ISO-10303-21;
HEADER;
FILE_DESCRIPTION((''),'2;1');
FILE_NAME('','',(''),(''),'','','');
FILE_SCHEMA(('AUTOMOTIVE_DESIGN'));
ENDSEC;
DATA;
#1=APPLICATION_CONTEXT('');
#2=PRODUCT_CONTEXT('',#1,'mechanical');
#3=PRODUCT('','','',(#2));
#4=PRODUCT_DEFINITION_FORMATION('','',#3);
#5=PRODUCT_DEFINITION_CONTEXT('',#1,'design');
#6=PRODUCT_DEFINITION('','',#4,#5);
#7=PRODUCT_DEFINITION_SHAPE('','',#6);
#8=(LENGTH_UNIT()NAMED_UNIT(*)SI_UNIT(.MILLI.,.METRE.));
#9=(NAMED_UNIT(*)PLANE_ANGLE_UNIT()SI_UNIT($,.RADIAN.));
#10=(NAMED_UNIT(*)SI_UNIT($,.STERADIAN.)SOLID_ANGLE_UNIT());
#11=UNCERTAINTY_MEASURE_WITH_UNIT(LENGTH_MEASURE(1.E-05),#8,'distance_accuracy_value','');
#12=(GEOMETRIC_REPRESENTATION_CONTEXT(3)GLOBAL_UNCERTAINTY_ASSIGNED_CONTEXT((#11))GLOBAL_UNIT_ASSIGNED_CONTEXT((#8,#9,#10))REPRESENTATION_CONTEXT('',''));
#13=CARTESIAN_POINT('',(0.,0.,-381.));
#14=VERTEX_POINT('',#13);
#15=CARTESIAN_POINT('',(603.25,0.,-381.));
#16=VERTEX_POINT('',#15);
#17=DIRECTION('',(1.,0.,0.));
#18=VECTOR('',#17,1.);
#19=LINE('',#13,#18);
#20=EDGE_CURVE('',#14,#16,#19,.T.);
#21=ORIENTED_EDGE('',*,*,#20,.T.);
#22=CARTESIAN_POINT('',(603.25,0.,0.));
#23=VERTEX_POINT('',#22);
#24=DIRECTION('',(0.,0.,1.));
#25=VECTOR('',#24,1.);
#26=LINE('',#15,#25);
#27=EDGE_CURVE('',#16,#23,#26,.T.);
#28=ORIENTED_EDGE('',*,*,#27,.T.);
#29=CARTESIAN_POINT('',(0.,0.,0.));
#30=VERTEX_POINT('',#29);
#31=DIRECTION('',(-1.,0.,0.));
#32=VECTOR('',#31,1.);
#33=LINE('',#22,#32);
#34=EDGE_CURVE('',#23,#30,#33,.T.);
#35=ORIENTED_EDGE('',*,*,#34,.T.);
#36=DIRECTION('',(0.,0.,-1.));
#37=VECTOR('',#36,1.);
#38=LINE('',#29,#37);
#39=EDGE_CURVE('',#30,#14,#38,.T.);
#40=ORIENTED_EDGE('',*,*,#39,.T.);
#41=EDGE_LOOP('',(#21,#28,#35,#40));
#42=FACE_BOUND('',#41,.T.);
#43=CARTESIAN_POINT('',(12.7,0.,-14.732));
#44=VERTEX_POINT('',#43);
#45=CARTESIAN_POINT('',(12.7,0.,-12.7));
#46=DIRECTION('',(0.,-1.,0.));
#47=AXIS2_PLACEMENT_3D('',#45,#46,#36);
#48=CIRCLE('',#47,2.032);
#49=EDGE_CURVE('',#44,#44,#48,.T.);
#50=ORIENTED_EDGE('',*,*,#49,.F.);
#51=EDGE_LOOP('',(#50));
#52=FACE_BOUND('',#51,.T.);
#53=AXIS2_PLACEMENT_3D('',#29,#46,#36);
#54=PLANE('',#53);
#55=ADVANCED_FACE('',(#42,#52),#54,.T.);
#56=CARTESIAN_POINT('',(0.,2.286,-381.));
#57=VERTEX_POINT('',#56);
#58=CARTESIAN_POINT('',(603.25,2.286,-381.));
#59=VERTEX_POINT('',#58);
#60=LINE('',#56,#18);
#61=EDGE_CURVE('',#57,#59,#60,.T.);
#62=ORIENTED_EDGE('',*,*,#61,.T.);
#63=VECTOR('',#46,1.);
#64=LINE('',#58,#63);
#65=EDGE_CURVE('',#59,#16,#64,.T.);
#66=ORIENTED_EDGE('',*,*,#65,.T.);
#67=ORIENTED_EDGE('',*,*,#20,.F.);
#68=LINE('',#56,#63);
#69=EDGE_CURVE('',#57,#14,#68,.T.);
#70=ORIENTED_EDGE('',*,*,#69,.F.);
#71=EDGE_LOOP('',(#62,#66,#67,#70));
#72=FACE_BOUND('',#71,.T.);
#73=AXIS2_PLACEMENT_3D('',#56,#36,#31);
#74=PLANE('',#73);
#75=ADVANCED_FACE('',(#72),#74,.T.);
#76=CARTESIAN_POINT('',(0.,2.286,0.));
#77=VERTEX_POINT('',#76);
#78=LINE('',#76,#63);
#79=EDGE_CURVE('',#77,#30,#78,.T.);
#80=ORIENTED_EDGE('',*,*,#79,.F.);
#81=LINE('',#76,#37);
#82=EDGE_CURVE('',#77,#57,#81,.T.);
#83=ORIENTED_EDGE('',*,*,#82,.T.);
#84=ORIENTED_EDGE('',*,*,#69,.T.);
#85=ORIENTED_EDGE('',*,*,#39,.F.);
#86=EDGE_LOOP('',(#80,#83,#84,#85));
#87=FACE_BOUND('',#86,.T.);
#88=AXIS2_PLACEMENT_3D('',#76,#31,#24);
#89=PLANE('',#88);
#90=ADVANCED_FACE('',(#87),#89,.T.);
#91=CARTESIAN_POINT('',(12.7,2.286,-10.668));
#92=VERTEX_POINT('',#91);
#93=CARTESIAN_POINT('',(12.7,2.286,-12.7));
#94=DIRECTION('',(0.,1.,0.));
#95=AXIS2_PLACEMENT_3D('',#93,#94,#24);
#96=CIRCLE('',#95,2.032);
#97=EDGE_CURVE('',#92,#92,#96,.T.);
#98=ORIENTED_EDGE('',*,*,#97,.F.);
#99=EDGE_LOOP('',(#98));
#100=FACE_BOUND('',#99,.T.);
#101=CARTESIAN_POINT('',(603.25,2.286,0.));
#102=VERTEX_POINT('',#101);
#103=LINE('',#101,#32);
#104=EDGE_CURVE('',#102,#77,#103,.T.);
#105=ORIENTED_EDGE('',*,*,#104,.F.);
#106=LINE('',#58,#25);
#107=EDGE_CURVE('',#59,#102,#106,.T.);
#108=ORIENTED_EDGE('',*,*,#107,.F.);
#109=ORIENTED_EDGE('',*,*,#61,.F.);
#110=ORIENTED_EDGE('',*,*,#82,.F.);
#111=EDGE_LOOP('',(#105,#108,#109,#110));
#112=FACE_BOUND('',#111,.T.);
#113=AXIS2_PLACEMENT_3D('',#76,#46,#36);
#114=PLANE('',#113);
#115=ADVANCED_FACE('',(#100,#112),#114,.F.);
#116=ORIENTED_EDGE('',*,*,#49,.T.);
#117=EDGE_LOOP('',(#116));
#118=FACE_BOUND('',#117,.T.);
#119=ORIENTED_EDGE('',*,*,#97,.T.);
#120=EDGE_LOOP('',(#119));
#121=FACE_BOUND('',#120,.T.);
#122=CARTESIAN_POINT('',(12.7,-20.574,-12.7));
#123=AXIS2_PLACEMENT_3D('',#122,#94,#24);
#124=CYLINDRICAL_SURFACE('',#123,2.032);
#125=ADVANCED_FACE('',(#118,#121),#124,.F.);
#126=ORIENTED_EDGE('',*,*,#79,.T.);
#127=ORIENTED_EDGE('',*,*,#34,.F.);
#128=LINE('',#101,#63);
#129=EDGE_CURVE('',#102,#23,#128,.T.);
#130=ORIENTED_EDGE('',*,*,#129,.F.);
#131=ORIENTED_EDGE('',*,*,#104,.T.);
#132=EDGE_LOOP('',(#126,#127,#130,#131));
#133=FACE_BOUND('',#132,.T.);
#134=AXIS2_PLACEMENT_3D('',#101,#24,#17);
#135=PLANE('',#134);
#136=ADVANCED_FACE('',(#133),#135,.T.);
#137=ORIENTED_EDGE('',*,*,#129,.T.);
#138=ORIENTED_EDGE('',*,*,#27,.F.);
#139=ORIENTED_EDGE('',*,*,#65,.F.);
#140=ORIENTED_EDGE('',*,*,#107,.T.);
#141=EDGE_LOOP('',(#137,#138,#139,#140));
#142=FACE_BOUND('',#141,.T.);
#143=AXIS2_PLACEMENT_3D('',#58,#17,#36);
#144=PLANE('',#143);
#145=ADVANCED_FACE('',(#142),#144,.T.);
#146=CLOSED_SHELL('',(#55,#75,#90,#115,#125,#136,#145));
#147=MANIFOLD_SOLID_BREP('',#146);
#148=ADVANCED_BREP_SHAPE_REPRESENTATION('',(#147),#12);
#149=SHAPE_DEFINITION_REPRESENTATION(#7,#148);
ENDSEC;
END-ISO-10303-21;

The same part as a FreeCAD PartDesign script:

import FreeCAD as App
import Part
import Sketcher
Q = App.Units.Quantity

doc = App.newDocument("Part")
body = doc.addObject("PartDesign::Body", "Body")

# Sketch on XZ plane
sketch1 = body.newObject("Sketcher::SketchObject", "Sketch")
sketch1.AttachmentSupport = (doc.getObject("XZ_Plane"), [""])
sketch1.MapMode = "FlatFace"
sketch1.addGeometry(Part.LineSegment(App.Vector(0, -381, 0), App.Vector(0, 0, 0)), False)
sketch1.addGeometry(Part.LineSegment(App.Vector(0, 0, 0), App.Vector(603.25, 0, 0)), False)
sketch1.addGeometry(Part.LineSegment(App.Vector(603.25, 0, 0), App.Vector(603.25, -381, 0)), False)
sketch1.addGeometry(Part.LineSegment(App.Vector(603.25, -381, 0), App.Vector(0, -381, 0)), False)
sketch1.addConstraint(Sketcher.Constraint("Coincident", 0, 2, 1, 1))
sketch1.addConstraint(Sketcher.Constraint("Coincident", 1, 2, 2, 1))
sketch1.addConstraint(Sketcher.Constraint("Coincident", 2, 2, 3, 1))
sketch1.addConstraint(Sketcher.Constraint("Coincident", 3, 2, 0, 1))
sketch1.addConstraint(Sketcher.Constraint("Vertical", 0))
sketch1.addConstraint(Sketcher.Constraint("Horizontal", 1))
sketch1.addConstraint(Sketcher.Constraint("Vertical", 2))
sketch1.addConstraint(Sketcher.Constraint("Horizontal", 3))
sketch1.addConstraint(Sketcher.Constraint("Coincident", 0, 2, -1, 1))
sketch1.addConstraint(Sketcher.Constraint("DistanceY", 0, 1, 0, 2, Q("15 in")))
sketch1.addConstraint(Sketcher.Constraint("DistanceX", 1, 1, 1, 2, Q("23.75 in")))
pad1 = body.newObject("PartDesign::Pad", "Pad")
pad1.Profile = sketch1
pad1.Length = Q("0.09 in")
pad1.Reversed = True

# Sketch on XZ plane
sketch2 = body.newObject("Sketcher::SketchObject", "Sketch001")
sketch2.AttachmentSupport = (doc.getObject("XZ_Plane"), [""])
sketch2.MapMode = "FlatFace"
sketch2.AttachmentOffset = App.Placement(App.Vector(0, 0, -0.09 * 25.4), App.Rotation())
sketch2.addGeometry(Part.Circle(App.Vector(12.7, -12.7, 0), App.Vector(0, 0, 1), 2.032), False)
sketch2.addConstraint(Sketcher.Constraint("Diameter", 0, Q("0.16 in")))
sketch2.addConstraint(Sketcher.Constraint("DistanceX", -1, 1, 0, 3, Q("0.5 in")))
sketch2.addConstraint(Sketcher.Constraint("DistanceY", 0, 3, -1, 1, Q("0.5 in")))
pocket1 = body.newObject("PartDesign::Pocket", "Pocket")
pocket1.Profile = sketch2
pocket1.Length = Q("0.9 in")
pocket1.Reversed = True

doc.recompute()
